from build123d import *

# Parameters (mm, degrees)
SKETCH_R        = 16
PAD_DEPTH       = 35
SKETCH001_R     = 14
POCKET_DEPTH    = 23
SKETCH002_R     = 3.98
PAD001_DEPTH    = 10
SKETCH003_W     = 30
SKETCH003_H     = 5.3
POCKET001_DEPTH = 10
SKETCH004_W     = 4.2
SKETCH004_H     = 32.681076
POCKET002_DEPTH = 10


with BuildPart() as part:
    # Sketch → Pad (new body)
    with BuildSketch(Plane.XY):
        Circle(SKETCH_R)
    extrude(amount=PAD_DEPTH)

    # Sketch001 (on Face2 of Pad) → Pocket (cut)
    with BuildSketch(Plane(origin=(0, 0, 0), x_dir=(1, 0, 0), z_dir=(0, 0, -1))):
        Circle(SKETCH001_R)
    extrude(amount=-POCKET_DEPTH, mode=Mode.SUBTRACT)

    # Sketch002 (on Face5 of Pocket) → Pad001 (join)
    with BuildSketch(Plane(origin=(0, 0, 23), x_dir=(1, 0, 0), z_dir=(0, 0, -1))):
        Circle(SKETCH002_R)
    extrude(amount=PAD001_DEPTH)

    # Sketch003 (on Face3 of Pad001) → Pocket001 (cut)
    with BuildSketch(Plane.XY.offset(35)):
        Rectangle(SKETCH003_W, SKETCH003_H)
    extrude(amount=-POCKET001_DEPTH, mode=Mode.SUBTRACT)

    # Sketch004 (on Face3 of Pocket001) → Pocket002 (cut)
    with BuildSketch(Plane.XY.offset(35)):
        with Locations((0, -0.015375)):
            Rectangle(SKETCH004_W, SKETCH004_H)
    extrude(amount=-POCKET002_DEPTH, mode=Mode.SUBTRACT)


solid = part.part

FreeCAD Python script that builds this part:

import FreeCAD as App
import Part
import Sketcher


def add_polygon(sketch, points):
    """Adds a closed chain of lines whose ends are joined by coincident constraints."""
    first, n = sketch.GeometryCount, len(points)
    for a, b in zip(points, points[1:] + points[:1]):
        sketch.addGeometry(Part.LineSegment(App.Vector(*a, 0), App.Vector(*b, 0)), False)
    for i in range(n):
        sketch.addConstraint(Sketcher.Constraint("Coincident", first + i, 2, first + (i + 1) % n, 1))

doc = App.newDocument("Part")
body = doc.addObject("PartDesign::Body", "Body")

sketch1 = body.newObject("Sketcher::SketchObject", "Sketch")
sketch1.AttachmentSupport = (doc.getObject("XY_Plane"), [""])
sketch1.MapMode = "FlatFace"
sketch1.addGeometry(Part.Circle(App.Vector(0, 0, 0), App.Vector(0, 0, 1), 16), False)
sketch1.addConstraint(Sketcher.Constraint("Coincident", 0, 3, -1, 1))
sketch1.addConstraint(Sketcher.Constraint("Diameter", 0, 32.0))
pad1 = body.newObject("PartDesign::Pad", "Pad")
pad1.Profile = sketch1
pad1.Length = 35

sketch2 = body.newObject("Sketcher::SketchObject", "Sketch001")
sketch2.AttachmentSupport = (doc.getObject("XY_Plane"), [""])
sketch2.MapMode = "FlatFace"
sketch2.addGeometry(Part.Circle(App.Vector(0, 0, 0), App.Vector(0, 0, 1), 14), False)
sketch2.addConstraint(Sketcher.Constraint("Coincident", 0, 3, -1, 1))
sketch2.addConstraint(Sketcher.Constraint("Diameter", 0, 28.0))
pocket1 = body.newObject("PartDesign::Pocket", "Pocket")
pocket1.Profile = sketch2
pocket1.Length = 23
pocket1.Reversed = True

sketch3 = body.newObject("Sketcher::SketchObject", "Sketch002")
sketch3.AttachmentSupport = (doc.getObject("XY_Plane"), [""])
sketch3.MapMode = "FlatFace"
sketch3.AttachmentOffset = App.Placement(App.Vector(0, 0, 23), App.Rotation())
sketch3.addGeometry(Part.Circle(App.Vector(0, 0, 0), App.Vector(0, 0, 1), 3.98), False)
sketch3.addConstraint(Sketcher.Constraint("Coincident", 0, 3, -1, 1))
sketch3.addConstraint(Sketcher.Constraint("Diameter", 0, 7.96))
pad2 = body.newObject("PartDesign::Pad", "Pad001")
pad2.Profile = sketch3
pad2.Length = 10
pad2.Reversed = True

sketch4 = body.newObject("Sketcher::SketchObject", "Sketch003")
sketch4.AttachmentSupport = (doc.getObject("XY_Plane"), [""])
sketch4.MapMode = "FlatFace"
sketch4.AttachmentOffset = App.Placement(App.Vector(0, 0, 35), App.Rotation())
add_polygon(sketch4, [(-15, 2.65), (-15, -2.65), (15, -2.65), (15, 2.65)])
sketch4.addConstraint(Sketcher.Constraint("Vertical", 0))
sketch4.addConstraint(Sketcher.Constraint("Horizontal", 1))
sketch4.addConstraint(Sketcher.Constraint("Vertical", 2))
sketch4.addConstraint(Sketcher.Constraint("Horizontal", 3))
sketch4.addConstraint(Sketcher.Constraint("Symmetric", 0, 2, 2, 2, -1, 1))
sketch4.addConstraint(Sketcher.Constraint("DistanceX", 1, 1, 1, 2, 30.0))
sketch4.addConstraint(Sketcher.Constraint("DistanceY", 0, 2, 0, 1, 5.3))
pocket2 = body.newObject("PartDesign::Pocket", "Pocket001")
pocket2.Profile = sketch4
pocket2.Length = 10

sketch5 = body.newObject("Sketcher::SketchObject", "Sketch004")
sketch5.AttachmentSupport = (doc.getObject("XY_Plane"), [""])
sketch5.MapMode = "FlatFace"
sketch5.AttachmentOffset = App.Placement(App.Vector(0, 0, 35), App.Rotation())
add_polygon(sketch5, [(-2.1, 16.325163), (-2.1, -16.355913), (2.1, -16.355913), (2.1, 16.325163)])
sketch5.addConstraint(Sketcher.Constraint("Vertical", 0))
sketch5.addConstraint(Sketcher.Constraint("Horizontal", 1))
sketch5.addConstraint(Sketcher.Constraint("Vertical", 2))
sketch5.addConstraint(Sketcher.Constraint("Horizontal", 3))
sketch5.addConstraint(Sketcher.Constraint("DistanceX", 1, 1, 1, 2, 4.2))
sketch5.addConstraint(Sketcher.Constraint("DistanceX", 0, 2, -1, 1, 2.1))
sketch5.addConstraint(Sketcher.Constraint("DistanceY", 0, 2, 0, 1, 32.681076))
sketch5.addConstraint(Sketcher.Constraint("DistanceY", 0, 2, -1, 1, 16.355913))
pocket3 = body.newObject("PartDesign::Pocket", "Pocket002")
pocket3.Profile = sketch5
pocket3.Length = 10

doc.recompute()
